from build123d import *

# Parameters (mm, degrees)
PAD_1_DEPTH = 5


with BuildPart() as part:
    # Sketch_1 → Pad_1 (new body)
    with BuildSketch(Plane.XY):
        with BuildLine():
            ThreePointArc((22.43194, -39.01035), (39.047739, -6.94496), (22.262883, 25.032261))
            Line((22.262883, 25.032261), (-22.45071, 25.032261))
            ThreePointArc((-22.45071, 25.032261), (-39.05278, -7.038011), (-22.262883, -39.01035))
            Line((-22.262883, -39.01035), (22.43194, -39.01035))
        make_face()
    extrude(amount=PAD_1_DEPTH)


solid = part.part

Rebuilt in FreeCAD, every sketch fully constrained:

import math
import FreeCAD as App
import Part
import Sketcher
Q = App.Units.Quantity

doc = App.newDocument("Part")
body = doc.addObject("PartDesign::Body", "Body")

# Sketch on XY plane
sketch1 = body.newObject("Sketcher::SketchObject", "Sketch")
sketch1.AttachmentSupport = (doc.getObject("XY_Plane"), [""])
sketch1.MapMode = "FlatFace"
sketch1.addGeometry(Part.ArcOfCircle(Part.Circle(App.Vector(0, -7, 0), App.Vector(0, 0, 1), 39), math.radians(-55), math.radians(55)), False)
sketch1.addGeometry(Part.LineSegment(App.Vector(22, 25, 0), App.Vector(-22, 25, 0)), False)
sketch1.addGeometry(Part.ArcOfCircle(Part.Circle(App.Vector(0, -7, 0), App.Vector(0, 0, 1), 39), math.radians(125), math.radians(235)), False)
sketch1.addGeometry(Part.LineSegment(App.Vector(-22, -39, 0), App.Vector(22, -39, 0)), False)
sketch1.addConstraint(Sketcher.Constraint("Coincident", 0, 2, 1, 1))
sketch1.addConstraint(Sketcher.Constraint("Coincident", 1, 2, 2, 1))
sketch1.addConstraint(Sketcher.Constraint("Coincident", 2, 2, 3, 1))
sketch1.addConstraint(Sketcher.Constraint("Coincident", 3, 2, 0, 1))
sketch1.addConstraint(Sketcher.Constraint("Horizontal", 1))
sketch1.addConstraint(Sketcher.Constraint("Horizontal", 3))
sketch1.addConstraint(Sketcher.Constraint("Radius", 0, Q("39.049219 mm")))
sketch1.addConstraint(Sketcher.Constraint("Radius", 2, Q("39.055066 mm")))
sketch1.addConstraint(Sketcher.Constraint("DistanceX", 2, 2, 2, 3, Q("22.265001 mm")))
sketch1.addConstraint(Sketcher.Constraint("DistanceY", 0, 3, 0, 2, Q("32.080301 mm")))
sketch1.addConstraint(Sketcher.Constraint("DistanceX", 1, 2, 1, 1, Q("44.713593 mm")))
sketch1.addConstraint(Sketcher.Constraint("DistanceY", 0, 3, -1, 1, Q("7.04804 mm")))
sketch1.addConstraint(Sketcher.Constraint("DistanceX", -1, 1, 2, 3, Q("0.002118 mm")))
sketch1.addConstraint(Sketcher.Constraint("DistanceY", 2, 3, -1, 1, Q("6.923469 mm")))
pad1 = body.newObject("PartDesign::Pad", "Pad")
pad1.Profile = sketch1
pad1.Length = 5

doc.recompute()
